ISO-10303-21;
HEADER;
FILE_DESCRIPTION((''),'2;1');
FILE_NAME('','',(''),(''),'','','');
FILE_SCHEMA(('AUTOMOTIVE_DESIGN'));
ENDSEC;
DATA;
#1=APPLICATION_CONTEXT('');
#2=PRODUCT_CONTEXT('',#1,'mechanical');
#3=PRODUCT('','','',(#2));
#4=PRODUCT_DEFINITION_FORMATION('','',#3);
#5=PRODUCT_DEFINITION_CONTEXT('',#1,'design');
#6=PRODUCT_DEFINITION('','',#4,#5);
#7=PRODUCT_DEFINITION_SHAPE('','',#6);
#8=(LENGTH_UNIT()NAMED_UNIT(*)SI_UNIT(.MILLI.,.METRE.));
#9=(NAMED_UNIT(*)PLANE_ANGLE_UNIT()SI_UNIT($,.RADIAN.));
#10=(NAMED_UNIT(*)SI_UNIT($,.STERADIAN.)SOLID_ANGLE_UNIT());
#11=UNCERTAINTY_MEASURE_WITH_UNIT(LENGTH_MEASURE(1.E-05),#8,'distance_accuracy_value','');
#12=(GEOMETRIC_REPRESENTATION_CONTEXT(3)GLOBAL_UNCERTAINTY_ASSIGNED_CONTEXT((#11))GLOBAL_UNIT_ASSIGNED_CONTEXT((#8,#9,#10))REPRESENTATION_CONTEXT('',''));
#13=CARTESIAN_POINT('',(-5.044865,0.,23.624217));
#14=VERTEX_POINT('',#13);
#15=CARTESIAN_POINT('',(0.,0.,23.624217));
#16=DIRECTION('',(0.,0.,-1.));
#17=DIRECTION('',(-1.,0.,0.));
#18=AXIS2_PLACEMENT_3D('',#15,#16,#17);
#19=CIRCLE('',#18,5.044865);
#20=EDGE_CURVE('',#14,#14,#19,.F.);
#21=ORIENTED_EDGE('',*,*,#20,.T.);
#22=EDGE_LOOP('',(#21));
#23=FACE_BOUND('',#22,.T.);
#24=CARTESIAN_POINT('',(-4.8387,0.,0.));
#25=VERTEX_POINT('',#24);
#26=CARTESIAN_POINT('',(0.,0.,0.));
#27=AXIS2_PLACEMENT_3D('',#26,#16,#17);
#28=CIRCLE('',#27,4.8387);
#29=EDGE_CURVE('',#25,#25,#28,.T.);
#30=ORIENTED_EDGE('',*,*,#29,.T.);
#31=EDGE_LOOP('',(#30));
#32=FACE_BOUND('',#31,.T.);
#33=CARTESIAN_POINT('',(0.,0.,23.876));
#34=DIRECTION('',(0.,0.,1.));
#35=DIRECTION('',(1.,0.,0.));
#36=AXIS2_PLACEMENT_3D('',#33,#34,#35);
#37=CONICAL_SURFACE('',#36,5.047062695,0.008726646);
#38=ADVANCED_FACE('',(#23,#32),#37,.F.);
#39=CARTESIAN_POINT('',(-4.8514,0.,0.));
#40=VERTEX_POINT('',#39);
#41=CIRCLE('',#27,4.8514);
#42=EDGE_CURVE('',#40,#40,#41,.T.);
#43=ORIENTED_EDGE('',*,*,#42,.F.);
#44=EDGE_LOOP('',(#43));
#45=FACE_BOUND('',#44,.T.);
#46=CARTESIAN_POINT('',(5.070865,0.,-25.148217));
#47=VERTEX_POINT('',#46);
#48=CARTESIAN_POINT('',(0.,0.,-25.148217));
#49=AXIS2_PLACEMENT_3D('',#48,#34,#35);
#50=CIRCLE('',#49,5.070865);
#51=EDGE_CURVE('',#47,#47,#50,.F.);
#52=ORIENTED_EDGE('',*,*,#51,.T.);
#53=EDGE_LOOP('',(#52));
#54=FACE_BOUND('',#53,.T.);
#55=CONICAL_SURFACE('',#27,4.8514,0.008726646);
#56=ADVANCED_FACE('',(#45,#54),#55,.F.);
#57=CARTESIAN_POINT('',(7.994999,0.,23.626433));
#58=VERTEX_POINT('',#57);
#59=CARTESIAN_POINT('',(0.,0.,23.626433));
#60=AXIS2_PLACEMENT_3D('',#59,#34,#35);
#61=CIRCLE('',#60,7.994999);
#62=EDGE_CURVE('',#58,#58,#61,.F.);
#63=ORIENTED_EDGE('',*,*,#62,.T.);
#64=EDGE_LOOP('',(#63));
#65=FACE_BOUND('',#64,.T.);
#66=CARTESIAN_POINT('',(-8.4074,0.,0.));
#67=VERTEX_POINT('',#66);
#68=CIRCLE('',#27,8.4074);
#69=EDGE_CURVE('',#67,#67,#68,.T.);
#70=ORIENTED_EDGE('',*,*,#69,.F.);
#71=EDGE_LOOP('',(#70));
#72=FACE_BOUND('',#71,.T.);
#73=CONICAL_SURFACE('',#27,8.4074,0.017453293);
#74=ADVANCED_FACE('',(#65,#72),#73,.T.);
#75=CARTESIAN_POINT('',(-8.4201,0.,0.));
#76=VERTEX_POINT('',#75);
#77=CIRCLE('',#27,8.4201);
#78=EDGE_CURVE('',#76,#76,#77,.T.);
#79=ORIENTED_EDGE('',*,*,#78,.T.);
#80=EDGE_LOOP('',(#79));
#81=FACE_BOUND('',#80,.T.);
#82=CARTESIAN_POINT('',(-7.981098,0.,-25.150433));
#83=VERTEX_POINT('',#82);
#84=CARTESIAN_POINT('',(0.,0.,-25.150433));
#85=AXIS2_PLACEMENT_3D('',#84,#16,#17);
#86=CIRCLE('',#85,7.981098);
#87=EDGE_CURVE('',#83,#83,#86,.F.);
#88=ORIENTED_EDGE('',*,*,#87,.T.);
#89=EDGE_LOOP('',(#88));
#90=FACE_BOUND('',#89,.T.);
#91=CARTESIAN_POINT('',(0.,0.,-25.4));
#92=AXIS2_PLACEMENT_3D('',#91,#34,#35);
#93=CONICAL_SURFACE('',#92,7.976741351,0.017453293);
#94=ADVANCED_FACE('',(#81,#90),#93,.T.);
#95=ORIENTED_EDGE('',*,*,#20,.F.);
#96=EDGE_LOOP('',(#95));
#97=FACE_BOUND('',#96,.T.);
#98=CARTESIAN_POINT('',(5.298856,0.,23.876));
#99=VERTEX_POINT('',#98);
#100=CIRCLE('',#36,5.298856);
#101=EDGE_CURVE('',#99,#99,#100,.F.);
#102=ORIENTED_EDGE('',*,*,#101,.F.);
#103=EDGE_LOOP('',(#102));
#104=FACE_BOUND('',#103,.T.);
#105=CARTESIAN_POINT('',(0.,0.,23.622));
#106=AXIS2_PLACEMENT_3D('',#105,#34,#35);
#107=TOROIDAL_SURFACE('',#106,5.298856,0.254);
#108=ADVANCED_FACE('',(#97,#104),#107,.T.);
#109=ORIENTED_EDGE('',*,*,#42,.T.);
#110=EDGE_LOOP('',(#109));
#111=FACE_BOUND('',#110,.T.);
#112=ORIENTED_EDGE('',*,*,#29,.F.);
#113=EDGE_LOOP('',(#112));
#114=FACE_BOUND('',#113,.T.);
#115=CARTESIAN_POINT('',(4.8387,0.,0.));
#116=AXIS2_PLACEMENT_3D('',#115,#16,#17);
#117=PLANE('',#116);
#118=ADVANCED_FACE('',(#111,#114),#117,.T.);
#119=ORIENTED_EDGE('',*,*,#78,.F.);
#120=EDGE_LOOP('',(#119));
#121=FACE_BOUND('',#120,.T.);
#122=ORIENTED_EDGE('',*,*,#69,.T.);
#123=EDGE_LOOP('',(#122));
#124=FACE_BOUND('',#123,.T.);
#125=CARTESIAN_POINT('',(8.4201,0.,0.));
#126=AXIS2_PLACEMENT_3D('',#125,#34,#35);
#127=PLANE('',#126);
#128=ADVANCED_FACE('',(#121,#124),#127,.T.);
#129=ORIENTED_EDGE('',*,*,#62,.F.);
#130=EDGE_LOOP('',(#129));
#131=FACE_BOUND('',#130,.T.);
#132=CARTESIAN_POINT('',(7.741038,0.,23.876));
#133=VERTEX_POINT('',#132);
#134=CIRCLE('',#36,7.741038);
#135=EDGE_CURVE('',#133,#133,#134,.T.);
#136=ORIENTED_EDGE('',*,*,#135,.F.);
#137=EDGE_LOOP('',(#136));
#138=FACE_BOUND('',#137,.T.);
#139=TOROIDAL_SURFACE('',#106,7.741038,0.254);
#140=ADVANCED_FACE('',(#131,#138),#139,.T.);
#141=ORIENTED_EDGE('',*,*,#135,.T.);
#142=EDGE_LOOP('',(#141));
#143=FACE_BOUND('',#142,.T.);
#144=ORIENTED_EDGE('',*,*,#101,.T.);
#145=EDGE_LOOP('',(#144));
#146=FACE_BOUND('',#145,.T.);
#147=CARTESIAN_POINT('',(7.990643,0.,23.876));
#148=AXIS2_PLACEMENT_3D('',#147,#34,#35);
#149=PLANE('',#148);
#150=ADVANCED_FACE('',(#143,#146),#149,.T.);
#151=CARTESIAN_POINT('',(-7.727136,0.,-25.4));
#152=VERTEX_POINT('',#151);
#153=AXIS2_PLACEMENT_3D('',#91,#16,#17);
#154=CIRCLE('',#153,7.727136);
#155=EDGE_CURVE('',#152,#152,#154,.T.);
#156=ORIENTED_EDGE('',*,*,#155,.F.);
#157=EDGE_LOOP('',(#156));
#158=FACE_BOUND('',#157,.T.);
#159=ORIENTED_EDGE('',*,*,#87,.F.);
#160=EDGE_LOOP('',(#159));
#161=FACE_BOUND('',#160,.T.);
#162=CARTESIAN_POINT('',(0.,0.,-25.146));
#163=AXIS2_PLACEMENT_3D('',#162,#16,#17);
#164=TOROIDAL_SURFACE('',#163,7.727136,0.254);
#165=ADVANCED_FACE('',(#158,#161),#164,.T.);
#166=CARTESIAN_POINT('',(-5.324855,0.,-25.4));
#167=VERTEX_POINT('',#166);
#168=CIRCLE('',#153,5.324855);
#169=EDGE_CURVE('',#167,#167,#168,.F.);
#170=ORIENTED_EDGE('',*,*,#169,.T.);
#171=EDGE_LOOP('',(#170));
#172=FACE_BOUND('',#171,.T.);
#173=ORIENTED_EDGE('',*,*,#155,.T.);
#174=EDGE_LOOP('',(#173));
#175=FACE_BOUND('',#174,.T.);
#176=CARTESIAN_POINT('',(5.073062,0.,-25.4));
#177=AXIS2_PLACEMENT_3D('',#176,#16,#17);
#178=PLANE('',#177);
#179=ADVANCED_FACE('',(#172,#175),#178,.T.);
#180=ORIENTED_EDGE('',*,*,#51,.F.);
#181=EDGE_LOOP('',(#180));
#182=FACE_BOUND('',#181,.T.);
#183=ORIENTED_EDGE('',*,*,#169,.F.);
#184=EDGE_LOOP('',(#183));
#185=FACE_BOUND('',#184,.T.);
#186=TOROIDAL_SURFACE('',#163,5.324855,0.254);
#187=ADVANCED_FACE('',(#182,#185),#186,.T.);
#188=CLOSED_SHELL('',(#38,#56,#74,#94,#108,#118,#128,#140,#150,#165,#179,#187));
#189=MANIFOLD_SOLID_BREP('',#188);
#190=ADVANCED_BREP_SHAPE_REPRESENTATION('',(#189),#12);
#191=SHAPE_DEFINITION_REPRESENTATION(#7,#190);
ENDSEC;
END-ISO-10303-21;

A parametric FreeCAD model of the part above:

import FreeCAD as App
import Part
import Sketcher

V = App.Vector
Q = App.Units.Quantity


def edges_at(feature, points):
    """Names of the edges that pass closest to the given points."""
    edges = feature.Shape.Edges
    near = lambda p: min(range(len(edges)), key=lambda i: edges[i].distToShape(Part.Vertex(*p))[0])
    return sorted({f"Edge{near(p) + 1}" for p in points})


def add_polygon(sketch, points):
    """Adds a closed chain of lines whose ends are joined by coincident constraints."""
    first, n = sketch.GeometryCount, len(points)
    for a, b in zip(points, points[1:] + points[:1]):
        sketch.addGeometry(Part.LineSegment(App.Vector(*a, 0), App.Vector(*b, 0)), False)
    for i in range(n):
        sketch.addConstraint(Sketcher.Constraint("Coincident", first + i, 2, first + (i + 1) % n, 1))

doc = App.newDocument("Part")
body = doc.addObject("PartDesign::Body", "Body")

# Sketch on XZ plane
sketch1 = doc.addObject("Sketcher::SketchObject", "Sketch")
body.addObject(sketch1)
sketch1.AttachmentSupport = (doc.XZ_Plane, [""])
sketch1.MapMode = "FlatFace"
add_polygon(sketch1, [(5.047, 23.876), (4.839, 0), (4.851, 0), (5.073, -25.4), (7.977, -25.4), (8.42, 0), (8.407, 0), (7.991, 23.876)])  # lines 0-7
sketch1.addConstraint([
    Sketcher.Constraint("Horizontal", 1),
    Sketcher.Constraint("Horizontal", 3),
    Sketcher.Constraint("Horizontal", 5),
    Sketcher.Constraint("Horizontal", 7),
    Sketcher.Constraint("PointOnObject", 0, 2, -1),
    Sketcher.Constraint("PointOnObject", 4, 2, -1),
    Sketcher.Constraint("Equal", 1, 5),
    Sketcher.Constraint("DistanceY", 2, 2, -1, 1, Q("1 in")),
    Sketcher.Constraint("Angle", 4, Q("89 deg")),
    Sketcher.Constraint("Angle", 6, Q("91 deg")),
    Sketcher.Constraint("Angle", 0, Q("-90.5 deg")),
    Sketcher.Constraint("Angle", 2, Q("-89.5 deg")),
    Sketcher.Constraint("DistanceY", -1, 1, 6, 2, Q("0.94 in")),
    Sketcher.Constraint("DistanceX", 1, 2, 5, 2, Q("0.14 in")),
    Sketcher.Constraint("DistanceX", 1, 1, 1, 2, Q("0.0005 in")),
    Sketcher.Constraint("DistanceX", -1, 1, 1, 2, Q("0.191 in")),
])
revolution = doc.addObject("PartDesign::Revolution", "Revolution")
body.addObject(revolution)
revolution.Profile = sketch1
revolution.ReferenceAxis = (sketch1, ["V_Axis"])
revolution.Angle = 360
doc.recompute()

fillet = doc.addObject("PartDesign::Fillet", "Fillet")
body.addObject(fillet)
fillet.Base = (revolution, edges_at(revolution, [
    (-7.991, 0, 23.876),
    (-7.977, 0, -25.4),
    (-5.073, 0, -25.4),
    (-5.047, 0, 23.876),
]))
fillet.Radius = Q("0.01 in")

doc.recompute()
